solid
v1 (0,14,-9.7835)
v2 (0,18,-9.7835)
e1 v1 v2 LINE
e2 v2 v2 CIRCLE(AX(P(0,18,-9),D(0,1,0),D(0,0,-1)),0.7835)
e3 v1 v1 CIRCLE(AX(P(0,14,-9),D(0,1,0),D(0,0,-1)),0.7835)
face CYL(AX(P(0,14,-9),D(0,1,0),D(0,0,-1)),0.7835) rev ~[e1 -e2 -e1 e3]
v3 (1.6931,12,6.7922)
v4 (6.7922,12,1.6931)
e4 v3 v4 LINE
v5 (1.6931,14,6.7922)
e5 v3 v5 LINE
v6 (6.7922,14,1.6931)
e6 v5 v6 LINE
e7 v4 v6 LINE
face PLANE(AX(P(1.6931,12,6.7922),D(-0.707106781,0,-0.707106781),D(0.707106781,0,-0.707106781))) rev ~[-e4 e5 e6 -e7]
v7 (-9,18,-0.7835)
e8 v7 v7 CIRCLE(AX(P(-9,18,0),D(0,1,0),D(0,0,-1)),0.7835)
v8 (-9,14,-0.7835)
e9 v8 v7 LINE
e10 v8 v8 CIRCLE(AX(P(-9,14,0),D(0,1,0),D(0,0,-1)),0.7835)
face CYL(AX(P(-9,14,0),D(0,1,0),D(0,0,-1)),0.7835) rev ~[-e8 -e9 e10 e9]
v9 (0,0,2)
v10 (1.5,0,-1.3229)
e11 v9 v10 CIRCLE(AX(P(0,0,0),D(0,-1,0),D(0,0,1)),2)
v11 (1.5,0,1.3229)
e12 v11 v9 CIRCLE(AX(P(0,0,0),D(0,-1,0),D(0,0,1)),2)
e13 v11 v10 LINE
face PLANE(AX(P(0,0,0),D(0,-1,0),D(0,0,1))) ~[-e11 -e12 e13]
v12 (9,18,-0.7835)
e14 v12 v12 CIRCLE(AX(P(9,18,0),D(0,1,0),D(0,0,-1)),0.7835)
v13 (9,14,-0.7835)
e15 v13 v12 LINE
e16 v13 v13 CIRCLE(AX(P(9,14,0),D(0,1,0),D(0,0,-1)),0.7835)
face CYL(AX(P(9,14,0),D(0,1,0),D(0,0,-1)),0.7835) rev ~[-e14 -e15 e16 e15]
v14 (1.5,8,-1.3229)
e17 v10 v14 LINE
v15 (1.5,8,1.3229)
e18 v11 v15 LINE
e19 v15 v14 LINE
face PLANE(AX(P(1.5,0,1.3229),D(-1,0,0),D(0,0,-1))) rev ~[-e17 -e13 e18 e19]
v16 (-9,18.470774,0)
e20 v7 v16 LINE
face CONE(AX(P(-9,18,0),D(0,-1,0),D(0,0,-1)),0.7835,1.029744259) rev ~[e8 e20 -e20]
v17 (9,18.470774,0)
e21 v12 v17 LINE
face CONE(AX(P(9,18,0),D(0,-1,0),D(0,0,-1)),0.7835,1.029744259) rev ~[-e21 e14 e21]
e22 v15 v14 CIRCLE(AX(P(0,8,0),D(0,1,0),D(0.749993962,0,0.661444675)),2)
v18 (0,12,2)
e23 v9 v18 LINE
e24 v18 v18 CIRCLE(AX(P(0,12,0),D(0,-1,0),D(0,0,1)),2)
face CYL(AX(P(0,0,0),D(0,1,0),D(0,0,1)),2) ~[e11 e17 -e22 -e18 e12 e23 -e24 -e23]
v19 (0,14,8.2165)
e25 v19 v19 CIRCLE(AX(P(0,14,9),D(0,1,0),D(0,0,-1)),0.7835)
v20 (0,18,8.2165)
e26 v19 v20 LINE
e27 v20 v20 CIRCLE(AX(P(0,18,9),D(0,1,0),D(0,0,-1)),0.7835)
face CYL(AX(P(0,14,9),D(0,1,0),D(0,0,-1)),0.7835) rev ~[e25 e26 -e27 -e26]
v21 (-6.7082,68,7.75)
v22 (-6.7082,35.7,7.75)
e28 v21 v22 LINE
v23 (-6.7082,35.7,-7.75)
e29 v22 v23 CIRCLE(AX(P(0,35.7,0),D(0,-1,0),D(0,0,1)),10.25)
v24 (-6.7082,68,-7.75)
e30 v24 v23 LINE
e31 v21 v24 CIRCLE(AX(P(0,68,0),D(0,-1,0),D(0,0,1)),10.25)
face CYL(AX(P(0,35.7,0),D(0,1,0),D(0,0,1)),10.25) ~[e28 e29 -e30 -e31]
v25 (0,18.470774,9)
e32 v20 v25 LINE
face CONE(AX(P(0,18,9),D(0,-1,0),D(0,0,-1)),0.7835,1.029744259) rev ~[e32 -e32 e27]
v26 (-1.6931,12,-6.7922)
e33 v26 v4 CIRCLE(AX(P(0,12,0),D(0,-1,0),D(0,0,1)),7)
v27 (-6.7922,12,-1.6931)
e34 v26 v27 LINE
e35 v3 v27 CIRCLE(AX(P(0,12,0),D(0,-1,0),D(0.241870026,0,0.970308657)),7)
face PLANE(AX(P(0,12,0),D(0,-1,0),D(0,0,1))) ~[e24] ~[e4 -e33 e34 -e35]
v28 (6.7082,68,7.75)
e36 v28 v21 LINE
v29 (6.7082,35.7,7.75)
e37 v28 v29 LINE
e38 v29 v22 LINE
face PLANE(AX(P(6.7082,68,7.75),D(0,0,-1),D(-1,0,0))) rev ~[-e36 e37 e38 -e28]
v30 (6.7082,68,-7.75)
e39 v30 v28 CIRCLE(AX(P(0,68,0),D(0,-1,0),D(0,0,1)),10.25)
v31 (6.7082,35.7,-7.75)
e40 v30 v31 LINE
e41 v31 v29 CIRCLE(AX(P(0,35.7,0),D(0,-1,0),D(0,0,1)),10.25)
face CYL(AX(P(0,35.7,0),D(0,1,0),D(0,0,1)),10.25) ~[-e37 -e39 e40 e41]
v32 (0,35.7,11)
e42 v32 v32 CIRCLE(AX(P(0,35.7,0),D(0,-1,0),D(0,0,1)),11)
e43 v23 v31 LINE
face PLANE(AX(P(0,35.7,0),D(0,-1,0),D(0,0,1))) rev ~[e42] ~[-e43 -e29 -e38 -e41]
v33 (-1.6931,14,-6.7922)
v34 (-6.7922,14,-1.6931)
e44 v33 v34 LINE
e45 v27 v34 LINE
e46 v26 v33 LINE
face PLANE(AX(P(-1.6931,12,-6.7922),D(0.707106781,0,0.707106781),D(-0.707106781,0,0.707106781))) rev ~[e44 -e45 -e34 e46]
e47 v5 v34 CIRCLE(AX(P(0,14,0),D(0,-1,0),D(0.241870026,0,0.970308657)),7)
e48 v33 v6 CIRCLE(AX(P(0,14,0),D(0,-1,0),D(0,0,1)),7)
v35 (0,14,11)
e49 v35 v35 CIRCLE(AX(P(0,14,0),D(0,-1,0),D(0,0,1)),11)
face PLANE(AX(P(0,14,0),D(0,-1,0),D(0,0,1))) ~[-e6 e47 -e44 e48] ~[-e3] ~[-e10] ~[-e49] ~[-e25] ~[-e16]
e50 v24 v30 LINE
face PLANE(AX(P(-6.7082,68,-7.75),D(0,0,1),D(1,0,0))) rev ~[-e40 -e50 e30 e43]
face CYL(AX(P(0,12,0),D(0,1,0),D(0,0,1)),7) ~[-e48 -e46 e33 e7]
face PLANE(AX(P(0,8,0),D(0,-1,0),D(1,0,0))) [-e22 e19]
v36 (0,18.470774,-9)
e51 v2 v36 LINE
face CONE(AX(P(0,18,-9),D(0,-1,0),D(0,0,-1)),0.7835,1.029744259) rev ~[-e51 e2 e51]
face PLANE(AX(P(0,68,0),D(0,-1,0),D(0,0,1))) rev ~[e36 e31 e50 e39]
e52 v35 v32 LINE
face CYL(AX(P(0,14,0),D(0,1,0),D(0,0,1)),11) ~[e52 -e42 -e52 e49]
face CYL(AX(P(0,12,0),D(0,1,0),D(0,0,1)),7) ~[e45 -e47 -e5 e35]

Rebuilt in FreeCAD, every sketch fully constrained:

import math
import FreeCAD as App
import Part
import Sketcher
Q = App.Units.Quantity


def add_polygon(sketch, points):
    """Adds a closed chain of lines whose ends are joined by coincident constraints."""
    first, n = sketch.GeometryCount, len(points)
    for a, b in zip(points, points[1:] + points[:1]):
        sketch.addGeometry(Part.LineSegment(App.Vector(*a, 0), App.Vector(*b, 0)), False)
    for i in range(n):
        sketch.addConstraint(Sketcher.Constraint("Coincident", first + i, 2, first + (i + 1) % n, 1))

doc = App.newDocument("Part")
body = doc.addObject("PartDesign::Body", "Body")

# Sketch on YZ plane
sketch1 = body.newObject("Sketcher::SketchObject", "Sketch")
sketch1.AttachmentSupport = (doc.getObject("YZ_Plane"), [""])
sketch1.MapMode = "FlatFace"
add_polygon(sketch1, [(0, 2), (0, 0), (68, 0), (68, 10.2), (35.7, 10.2), (35.7, 11), (14, 11), (14, 7), (12, 7), (12, 2)])  # lines 0-9
sketch1.addConstraint(Sketcher.Constraint("Vertical", 0))
sketch1.addConstraint(Sketcher.Constraint("Horizontal", 1))
sketch1.addConstraint(Sketcher.Constraint("Vertical", 2))
sketch1.addConstraint(Sketcher.Constraint("Horizontal", 3))
sketch1.addConstraint(Sketcher.Constraint("Vertical", 4))
sketch1.addConstraint(Sketcher.Constraint("Horizontal", 5))
sketch1.addConstraint(Sketcher.Constraint("Vertical", 6))
sketch1.addConstraint(Sketcher.Constraint("Horizontal", 7))
sketch1.addConstraint(Sketcher.Constraint("Vertical", 8))
sketch1.addConstraint(Sketcher.Constraint("Horizontal", 9))
sketch1.addConstraint(Sketcher.Constraint("Coincident", 0, 2, -1, 1))
sketch1.addConstraint(Sketcher.Constraint("Equal", 7, 0))
sketch1.addConstraint(Sketcher.Constraint("DistanceX", 7, 2, 7, 1, Q("2 mm")))
sketch1.addConstraint(Sketcher.Constraint("DistanceX", 9, 2, 9, 1, Q("12 mm")))
sketch1.addConstraint(Sketcher.Constraint("DistanceY", 6, 2, 6, 1, Q("4 mm")))
sketch1.addConstraint(Sketcher.Constraint("DistanceX", 3, 2, 3, 1, Q("32.3 mm")))
sketch1.addConstraint(Sketcher.Constraint("DistanceX", 5, 2, 5, 1, Q("21.7 mm")))
sketch1.addConstraint(Sketcher.Constraint("DistanceY", 8, 2, 8, 1, Q("5 mm")))
sketch1.addConstraint(Sketcher.Constraint("DistanceY", 2, 1, 2, 2, Q("10.25 mm")))
revolution = body.newObject("PartDesign::Revolution", "Revolution")
revolution.Profile = sketch1
revolution.ReferenceAxis = (sketch1, ["H_Axis"])
revolution.Angle = 360

# Sketch on XZ plane
sketch2 = body.newObject("Sketcher::SketchObject", "Sketch001")
sketch2.AttachmentSupport = (doc.getObject("XZ_Plane"), [""])
sketch2.MapMode = "FlatFace"
sketch2.AttachmentOffset = App.Placement(App.Vector(0, 0, -14), App.Rotation())
sketch2.addGeometry(Part.Circle(App.Vector(0, 9, 0), App.Vector(0, 0, 1), 0.8), False)
sketch2.addGeometry(Part.Circle(App.Vector(-9, 0, 0), App.Vector(0, 0, 1), 0.8), False)
sketch2.addGeometry(Part.Circle(App.Vector(0, -9, 0), App.Vector(0, 0, 1), 0.8), False)
sketch2.addGeometry(Part.Circle(App.Vector(9, 0, 0), App.Vector(0, 0, 1), 0.8), False)
sketch2.addConstraint(Sketcher.Constraint("Equal", 0, 1))
sketch2.addConstraint(Sketcher.Constraint("Equal", 1, 2))
sketch2.addConstraint(Sketcher.Constraint("Equal", 2, 3))
sketch2.addConstraint(Sketcher.Constraint("Symmetric", 0, 3, 2, 3, -1, 1))
sketch2.addConstraint(Sketcher.Constraint("Symmetric", 1, 3, 3, 3, -1, 1))
sketch2.addConstraint(Sketcher.Constraint("PointOnObject", 0, 3, -2))
sketch2.addConstraint(Sketcher.Constraint("PointOnObject", 1, 3, -1))
sketch2.addConstraint(Sketcher.Constraint("Diameter", 0, Q("1.567 mm")))
sketch2.addConstraint(Sketcher.Constraint("DistanceY", -1, 1, 0, 3, Q("9 mm")))
sketch2.addConstraint(Sketcher.Constraint("DistanceX", 1, 3, -1, 1, Q("9 mm")))
doc.recompute()
hole = body.newObject("PartDesign::Hole", "Hole")
hole.Profile = sketch2
hole.ThreadType = "None"
hole.Diameter = 1.567
hole.DepthType = "Dimension"
hole.Depth = 4
hole.DrillPoint = "Angled"
hole.DrillPointAngle = 118

# Sketch on XZ plane
sketch3 = body.newObject("Sketcher::SketchObject", "Sketch002")
sketch3.AttachmentSupport = (doc.getObject("XZ_Plane"), [""])
sketch3.MapMode = "FlatFace"
sketch3.AttachmentOffset = App.Placement(App.Vector(0, 0, -12), App.Rotation())
sketch3.addGeometry(Part.LineSegment(App.Vector(2, 7, 0), App.Vector(7, 2, 0)), False)
sketch3.addGeometry(Part.ArcOfCircle(Part.Circle(App.Vector(0, 0, 0), App.Vector(0, 0, 1), 7), math.radians(14), math.radians(76)), False)
sketch3.addGeometry(Part.ArcOfCircle(Part.Circle(App.Vector(0, 0, 0), App.Vector(0, 0, 1), 7), math.radians(-166), math.radians(-104)), False)
sketch3.addGeometry(Part.LineSegment(App.Vector(-7, -2, 0), App.Vector(-2, -7, 0)), False)
sketch3.addConstraint(Sketcher.Constraint("Coincident", 0, 1, 1, 2))
sketch3.addConstraint(Sketcher.Constraint("Coincident", 1, 1, 0, 2))
sketch3.addConstraint(Sketcher.Constraint("Coincident", 2, 1, 3, 1))
sketch3.addConstraint(Sketcher.Constraint("Coincident", 3, 2, 2, 2))
sketch3.addConstraint(Sketcher.Constraint("Coincident", 1, 3, -1, 1))
sketch3.addConstraint(Sketcher.Constraint("Coincident", 2, 3, -1, 1))
sketch3.addConstraint(Sketcher.Constraint("Equal", 1, 2))
sketch3.addConstraint(Sketcher.Constraint("Parallel", 0, 3))
sketch3.addConstraint(Sketcher.Constraint("Equal", 0, 3))
sketch3.addConstraint(Sketcher.Constraint("Radius", 1, Q("7 mm")))
sketch3.addConstraint(Sketcher.Constraint("Angle", 0, Q("-45 deg")))
sketch3.addConstraint(Sketcher.Constraint("DistanceX", -1, 1, 0, 1, Q("1.693 mm")))
pocket1 = body.newObject("PartDesign::Pocket", "Pocket")
pocket1.Profile = sketch3
pocket1.Length = 2

# Sketch on XZ plane
sketch4 = body.newObject("Sketcher::SketchObject", "Sketch003")
sketch4.AttachmentSupport = (doc.getObject("XZ_Plane"), [""])
sketch4.MapMode = "FlatFace"
sketch4.addGeometry(Part.ArcOfCircle(Part.Circle(App.Vector(0, 0, 0), App.Vector(0, 0, 1), 2), math.radians(-41), math.radians(41)), False)
sketch4.addGeometry(Part.LineSegment(App.Vector(1.5, -1.3, 0), App.Vector(1.5, 1.3, 0)), False)
sketch4.addConstraint(Sketcher.Constraint("Coincident", 0, 1, 1, 1))
sketch4.addConstraint(Sketcher.Constraint("Coincident", 1, 2, 0, 2))
sketch4.addConstraint(Sketcher.Constraint("Vertical", 1))
sketch4.addConstraint(Sketcher.Constraint("Coincident", 0, 3, -1, 1))
sketch4.addConstraint(Sketcher.Constraint("Radius", 0, Q("2 mm")))
sketch4.addConstraint(Sketcher.Constraint("DistanceX", -1, 1, 0, 1, Q("1.5 mm")))
pocket2 = body.newObject("PartDesign::Pocket", "Pocket001")
pocket2.Profile = sketch4
pocket2.Length = 8

# Sketch on XZ plane
sketch5 = body.newObject("Sketcher::SketchObject", "Sketch004")
sketch5.AttachmentSupport = (doc.getObject("XZ_Plane"), [""])
sketch5.MapMode = "FlatFace"
sketch5.AttachmentOffset = App.Placement(App.Vector(0, 0, -68), App.Rotation())
sketch5.addGeometry(Part.LineSegment(App.Vector(-7, -8, 0), App.Vector(7, -8, 0)), False)
sketch5.addGeometry(Part.ArcOfCircle(Part.Circle(App.Vector(0, 0, 0), App.Vector(0, 0, 1), 10), math.radians(-131), math.radians(-49)), False)
sketch5.addGeometry(Part.ArcOfCircle(Part.Circle(App.Vector(0, 0, 0), App.Vector(0, 0, 1), 10), math.radians(49), math.radians(131)), False)
sketch5.addGeometry(Part.LineSegment(App.Vector(-7, 8, 0), App.Vector(7, 8, 0)), False)
sketch5.addConstraint(Sketcher.Constraint("Coincident", 0, 1, 1, 1))
sketch5.addConstraint(Sketcher.Constraint("Coincident", 1, 2, 0, 2))
sketch5.addConstraint(Sketcher.Constraint("Coincident", 2, 1, 3, 2))
sketch5.addConstraint(Sketcher.Constraint("Coincident", 3, 1, 2, 2))
sketch5.addConstraint(Sketcher.Constraint("Horizontal", 0))
sketch5.addConstraint(Sketcher.Constraint("Horizontal", 3))
sketch5.addConstraint(Sketcher.Constraint("Coincident", 1, 3, -1, 1))
sketch5.addConstraint(Sketcher.Constraint("Coincident", 2, 3, -1, 1))
sketch5.addConstraint(Sketcher.Constraint("Equal", 1, 2))
sketch5.addConstraint(Sketcher.Constraint("Vertical", 1, 2, 2, 1))
sketch5.addConstraint(Sketcher.Constraint("DistanceY", 1, 2, 2, 1, Q("15.5 mm")))
sketch5.addConstraint(Sketcher.Constraint("Radius", 1, Q("10.25 mm")))
pocket3 = body.newObject("PartDesign::Pocket", "Pocket002")
pocket3.Profile = sketch5
pocket3.Length = 32.3
pocket3.Reversed = True

doc.recompute()
